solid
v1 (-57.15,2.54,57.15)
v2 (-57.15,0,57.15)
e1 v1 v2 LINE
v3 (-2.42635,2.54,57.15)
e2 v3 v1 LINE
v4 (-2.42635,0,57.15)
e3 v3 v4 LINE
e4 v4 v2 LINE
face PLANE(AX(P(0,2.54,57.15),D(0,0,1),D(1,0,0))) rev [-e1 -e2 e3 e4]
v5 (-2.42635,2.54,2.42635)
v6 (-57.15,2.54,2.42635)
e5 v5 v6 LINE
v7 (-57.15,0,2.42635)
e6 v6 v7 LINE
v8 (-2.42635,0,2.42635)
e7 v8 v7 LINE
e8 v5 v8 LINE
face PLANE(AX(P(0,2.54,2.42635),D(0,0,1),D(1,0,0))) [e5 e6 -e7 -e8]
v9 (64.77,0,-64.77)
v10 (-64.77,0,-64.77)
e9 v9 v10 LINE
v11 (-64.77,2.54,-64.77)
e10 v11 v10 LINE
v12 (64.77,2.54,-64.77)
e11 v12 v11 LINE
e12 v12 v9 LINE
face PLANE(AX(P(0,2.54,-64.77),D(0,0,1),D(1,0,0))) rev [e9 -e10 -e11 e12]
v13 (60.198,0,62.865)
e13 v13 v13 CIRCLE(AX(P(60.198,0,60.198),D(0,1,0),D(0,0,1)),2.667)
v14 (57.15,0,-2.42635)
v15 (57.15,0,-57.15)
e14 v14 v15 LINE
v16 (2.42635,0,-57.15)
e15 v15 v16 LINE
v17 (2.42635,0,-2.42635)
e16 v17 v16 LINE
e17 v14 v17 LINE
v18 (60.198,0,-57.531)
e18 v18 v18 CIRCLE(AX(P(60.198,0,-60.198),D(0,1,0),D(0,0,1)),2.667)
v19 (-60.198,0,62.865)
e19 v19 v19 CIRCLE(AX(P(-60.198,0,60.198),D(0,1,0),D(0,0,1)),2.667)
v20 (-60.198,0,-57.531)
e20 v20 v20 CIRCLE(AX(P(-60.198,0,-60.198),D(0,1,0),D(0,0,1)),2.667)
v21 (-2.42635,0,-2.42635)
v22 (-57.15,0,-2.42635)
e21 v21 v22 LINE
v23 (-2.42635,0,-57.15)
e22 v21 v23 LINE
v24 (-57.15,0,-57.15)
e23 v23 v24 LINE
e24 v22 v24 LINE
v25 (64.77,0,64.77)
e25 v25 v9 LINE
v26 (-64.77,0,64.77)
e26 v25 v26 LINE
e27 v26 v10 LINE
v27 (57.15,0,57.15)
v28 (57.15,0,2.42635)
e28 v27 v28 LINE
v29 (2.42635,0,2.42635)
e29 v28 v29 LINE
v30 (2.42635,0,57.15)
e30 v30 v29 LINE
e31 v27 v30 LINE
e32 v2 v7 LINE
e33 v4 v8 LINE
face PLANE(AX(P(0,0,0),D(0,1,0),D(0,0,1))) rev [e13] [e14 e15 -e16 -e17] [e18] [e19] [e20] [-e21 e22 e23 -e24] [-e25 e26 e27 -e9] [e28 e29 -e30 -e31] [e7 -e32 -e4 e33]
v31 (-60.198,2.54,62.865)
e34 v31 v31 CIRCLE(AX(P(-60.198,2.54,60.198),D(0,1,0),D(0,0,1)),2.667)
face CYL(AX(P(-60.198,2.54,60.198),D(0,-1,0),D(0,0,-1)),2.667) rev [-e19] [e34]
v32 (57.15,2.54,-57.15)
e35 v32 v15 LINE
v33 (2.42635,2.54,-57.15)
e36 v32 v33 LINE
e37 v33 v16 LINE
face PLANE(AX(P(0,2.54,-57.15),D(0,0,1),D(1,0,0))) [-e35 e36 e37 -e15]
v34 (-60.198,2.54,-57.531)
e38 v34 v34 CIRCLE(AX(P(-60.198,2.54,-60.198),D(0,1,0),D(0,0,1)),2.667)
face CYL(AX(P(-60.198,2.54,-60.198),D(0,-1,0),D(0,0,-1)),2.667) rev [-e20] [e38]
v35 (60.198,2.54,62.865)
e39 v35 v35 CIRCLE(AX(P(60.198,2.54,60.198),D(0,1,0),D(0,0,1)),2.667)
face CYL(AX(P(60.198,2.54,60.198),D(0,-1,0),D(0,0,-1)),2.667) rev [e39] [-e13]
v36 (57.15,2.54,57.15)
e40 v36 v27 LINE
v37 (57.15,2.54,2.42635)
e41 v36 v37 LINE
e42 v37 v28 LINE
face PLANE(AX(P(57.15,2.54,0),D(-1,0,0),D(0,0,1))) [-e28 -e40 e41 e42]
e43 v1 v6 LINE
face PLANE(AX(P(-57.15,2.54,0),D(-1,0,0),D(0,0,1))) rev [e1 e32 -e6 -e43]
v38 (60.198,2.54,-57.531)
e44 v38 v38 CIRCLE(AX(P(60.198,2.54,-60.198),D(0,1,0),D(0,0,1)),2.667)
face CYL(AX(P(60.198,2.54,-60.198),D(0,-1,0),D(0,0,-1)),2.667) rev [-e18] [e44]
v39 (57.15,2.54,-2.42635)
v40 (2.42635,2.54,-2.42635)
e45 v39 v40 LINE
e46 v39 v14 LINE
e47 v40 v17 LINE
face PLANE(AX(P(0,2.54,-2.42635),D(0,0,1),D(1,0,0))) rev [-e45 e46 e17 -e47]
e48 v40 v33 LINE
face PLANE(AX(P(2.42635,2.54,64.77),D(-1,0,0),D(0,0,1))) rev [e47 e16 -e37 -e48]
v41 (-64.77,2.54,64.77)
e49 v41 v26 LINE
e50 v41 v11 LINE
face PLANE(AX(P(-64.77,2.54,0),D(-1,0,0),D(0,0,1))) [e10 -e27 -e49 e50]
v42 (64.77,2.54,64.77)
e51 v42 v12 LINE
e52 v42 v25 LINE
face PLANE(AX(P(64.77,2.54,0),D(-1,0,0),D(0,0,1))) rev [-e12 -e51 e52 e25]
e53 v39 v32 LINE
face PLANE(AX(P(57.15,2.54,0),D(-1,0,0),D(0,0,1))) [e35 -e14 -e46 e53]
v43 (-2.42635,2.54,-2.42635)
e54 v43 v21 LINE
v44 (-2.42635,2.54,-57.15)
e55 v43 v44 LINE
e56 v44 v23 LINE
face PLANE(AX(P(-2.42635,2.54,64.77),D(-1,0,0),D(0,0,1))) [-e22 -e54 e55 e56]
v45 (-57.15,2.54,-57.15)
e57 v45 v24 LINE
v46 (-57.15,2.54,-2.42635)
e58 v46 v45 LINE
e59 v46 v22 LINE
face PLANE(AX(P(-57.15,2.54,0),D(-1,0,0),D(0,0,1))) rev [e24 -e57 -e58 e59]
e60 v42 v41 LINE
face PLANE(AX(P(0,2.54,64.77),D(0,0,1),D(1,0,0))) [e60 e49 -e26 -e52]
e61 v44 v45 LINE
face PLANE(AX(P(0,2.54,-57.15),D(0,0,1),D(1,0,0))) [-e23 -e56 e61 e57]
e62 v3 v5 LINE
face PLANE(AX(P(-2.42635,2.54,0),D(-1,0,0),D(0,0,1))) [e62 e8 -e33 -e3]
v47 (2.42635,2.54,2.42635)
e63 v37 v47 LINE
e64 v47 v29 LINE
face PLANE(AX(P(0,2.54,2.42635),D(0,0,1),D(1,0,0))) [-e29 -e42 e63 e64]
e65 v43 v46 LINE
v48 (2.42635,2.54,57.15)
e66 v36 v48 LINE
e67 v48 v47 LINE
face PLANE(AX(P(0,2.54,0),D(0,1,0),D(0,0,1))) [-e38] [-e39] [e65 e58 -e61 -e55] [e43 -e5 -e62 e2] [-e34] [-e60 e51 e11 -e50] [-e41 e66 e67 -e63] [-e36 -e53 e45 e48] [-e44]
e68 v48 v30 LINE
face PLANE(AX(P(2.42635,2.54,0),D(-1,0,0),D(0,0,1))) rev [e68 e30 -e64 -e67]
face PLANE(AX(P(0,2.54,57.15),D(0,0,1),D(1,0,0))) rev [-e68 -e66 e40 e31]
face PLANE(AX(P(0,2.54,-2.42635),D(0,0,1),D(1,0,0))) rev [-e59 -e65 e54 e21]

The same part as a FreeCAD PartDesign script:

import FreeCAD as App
import Part
import Sketcher
Q = App.Units.Quantity

doc = App.newDocument("Part")
params = doc.addObject("Spreadsheet::Sheet", "Params")
for row, (alias, value) in enumerate([
    ("sketch1_diameter", "0.21 in"),
    ("sketch1_width", "5.1 in"),
    ("pad1_length", "0.1 in"),
], start=1):
    params.set(f"A{row}", alias)
    params.set(f"B{row}", "=" + value)
    params.setAlias(f"B{row}", alias)

body = doc.addObject("PartDesign::Body", "Body")

sketch1 = body.newObject("Sketcher::SketchObject", "Sketch")
sketch1.AttachmentSupport = (doc.getObject("XZ_Plane"), [""])
sketch1.MapMode = "FlatFace"
sketch1.addGeometry(Part.LineSegment(App.Vector(-64.8, 64.8, 0), App.Vector(64.8, 64.8, 0)), False)
sketch1.addGeometry(Part.LineSegment(App.Vector(64.8, 64.8, 0), App.Vector(64.8, -64.8, 0)), False)
sketch1.addGeometry(Part.LineSegment(App.Vector(64.8, -64.8, 0), App.Vector(-64.8, -64.8, 0)), False)
sketch1.addGeometry(Part.LineSegment(App.Vector(-64.8, -64.8, 0), App.Vector(-64.8, 64.8, 0)), False)
sketch1.addGeometry(Part.LineSegment(App.Vector(-57.1, 57.1, 0), App.Vector(-57.1, 2.4, 0)), False)
sketch1.addGeometry(Part.LineSegment(App.Vector(-57.1, 2.4, 0), App.Vector(-2.4, 2.4, 0)), False)
sketch1.addGeometry(Part.LineSegment(App.Vector(-2.4, 2.4, 0), App.Vector(-2.4, 57.1, 0)), False)
sketch1.addGeometry(Part.LineSegment(App.Vector(-2.4, 57.1, 0), App.Vector(-57.1, 57.1, 0)), False)
sketch1.addGeometry(Part.Circle(App.Vector(-60.2, 60.2, 0), App.Vector(0, 0, 1), 2.7), False)
sketch1.addGeometry(Part.LineSegment(App.Vector(-57.1, -57.1, 0), App.Vector(-2.4, -57.1, 0)), False)
sketch1.addGeometry(Part.LineSegment(App.Vector(-2.4, -57.1, 0), App.Vector(-2.4, -2.4, 0)), False)
sketch1.addGeometry(Part.LineSegment(App.Vector(-2.4, -2.4, 0), App.Vector(-57.1, -2.4, 0)), False)
sketch1.addGeometry(Part.LineSegment(App.Vector(-57.1, -2.4, 0), App.Vector(-57.1, -57.1, 0)), False)
sketch1.addGeometry(Part.Circle(App.Vector(-60.2, -60.2, 0), App.Vector(0, 0, 1), 2.7), False)
sketch1.addGeometry(Part.LineSegment(App.Vector(2.4, 57.1, 0), App.Vector(2.4, 2.4, 0)), False)
sketch1.addGeometry(Part.LineSegment(App.Vector(2.4, 2.4, 0), App.Vector(57.1, 2.4, 0)), False)
sketch1.addGeometry(Part.LineSegment(App.Vector(57.1, 2.4, 0), App.Vector(57.1, 57.1, 0)), False)
sketch1.addGeometry(Part.LineSegment(App.Vector(57.1, 57.1, 0), App.Vector(2.4, 57.1, 0)), False)
sketch1.addGeometry(Part.Circle(App.Vector(60.2, 60.2, 0), App.Vector(0, 0, 1), 2.7), False)
sketch1.addGeometry(Part.Circle(App.Vector(60.2, -60.2, 0), App.Vector(0, 0, 1), 2.7), False)
sketch1.addGeometry(Part.LineSegment(App.Vector(57.1, -57.1, 0), App.Vector(57.1, -2.4, 0)), False)
sketch1.addGeometry(Part.LineSegment(App.Vector(57.1, -2.4, 0), App.Vector(2.4, -2.4, 0)), False)
sketch1.addGeometry(Part.LineSegment(App.Vector(2.4, -2.4, 0), App.Vector(2.4, -57.1, 0)), False)
sketch1.addGeometry(Part.LineSegment(App.Vector(2.4, -57.1, 0), App.Vector(57.1, -57.1, 0)), False)
sketch1.addConstraint(Sketcher.Constraint("Coincident", 0, 2, 1, 1))
sketch1.addConstraint(Sketcher.Constraint("Coincident", 1, 2, 2, 1))
sketch1.addConstraint(Sketcher.Constraint("Coincident", 2, 2, 3, 1))
sketch1.addConstraint(Sketcher.Constraint("Coincident", 3, 2, 0, 1))
sketch1.addConstraint(Sketcher.Constraint("Coincident", 4, 2, 5, 1))
sketch1.addConstraint(Sketcher.Constraint("Coincident", 5, 2, 6, 1))
sketch1.addConstraint(Sketcher.Constraint("Coincident", 6, 2, 7, 1))
sketch1.addConstraint(Sketcher.Constraint("Coincident", 7, 2, 4, 1))
sketch1.addConstraint(Sketcher.Constraint("Coincident", 9, 2, 10, 1))
sketch1.addConstraint(Sketcher.Constraint("Coincident", 10, 2, 11, 1))
sketch1.addConstraint(Sketcher.Constraint("Coincident", 11, 2, 12, 1))
sketch1.addConstraint(Sketcher.Constraint("Coincident", 12, 2, 9, 1))
sketch1.addConstraint(Sketcher.Constraint("Coincident", 14, 2, 15, 1))
sketch1.addConstraint(Sketcher.Constraint("Coincident", 15, 2, 16, 1))
sketch1.addConstraint(Sketcher.Constraint("Coincident", 16, 2, 17, 1))
sketch1.addConstraint(Sketcher.Constraint("Coincident", 17, 2, 14, 1))
sketch1.addConstraint(Sketcher.Constraint("Coincident", 20, 2, 21, 1))
sketch1.addConstraint(Sketcher.Constraint("Coincident", 21, 2, 22, 1))
sketch1.addConstraint(Sketcher.Constraint("Coincident", 22, 2, 23, 1))
sketch1.addConstraint(Sketcher.Constraint("Coincident", 23, 2, 20, 1))
sketch1.addConstraint(Sketcher.Constraint("Horizontal", 0))
sketch1.addConstraint(Sketcher.Constraint("Vertical", 1))
sketch1.addConstraint(Sketcher.Constraint("Horizontal", 2))
sketch1.addConstraint(Sketcher.Constraint("Vertical", 3))
sketch1.addConstraint(Sketcher.Constraint("Vertical", 4))
sketch1.addConstraint(Sketcher.Constraint("Horizontal", 5))
sketch1.addConstraint(Sketcher.Constraint("Vertical", 6))
sketch1.addConstraint(Sketcher.Constraint("Horizontal", 7))
sketch1.addConstraint(Sketcher.Constraint("Horizontal", 9))
sketch1.addConstraint(Sketcher.Constraint("Vertical", 10))
sketch1.addConstraint(Sketcher.Constraint("Horizontal", 11))
sketch1.addConstraint(Sketcher.Constraint("Vertical", 12))
sketch1.addConstraint(Sketcher.Constraint("Vertical", 14))
sketch1.addConstraint(Sketcher.Constraint("Horizontal", 15))
sketch1.addConstraint(Sketcher.Constraint("Vertical", 16))
sketch1.addConstraint(Sketcher.Constraint("Horizontal", 17))
sketch1.addConstraint(Sketcher.Constraint("Vertical", 20))
sketch1.addConstraint(Sketcher.Constraint("Horizontal", 21))
sketch1.addConstraint(Sketcher.Constraint("Vertical", 22))
sketch1.addConstraint(Sketcher.Constraint("Horizontal", 23))
sketch1.addConstraint(Sketcher.Constraint("Equal", 8, 13))
sketch1.addConstraint(Sketcher.Constraint("Equal", 13, 18))
sketch1.addConstraint(Sketcher.Constraint("Equal", 18, 19))
sketch1.addConstraint(Sketcher.Constraint("Symmetric", 13, 3, 18, 3, -1, 1))
sketch1.addConstraint(Sketcher.Constraint("Symmetric", 8, 3, 19, 3, -1, 1))
sketch1.addConstraint(Sketcher.Constraint("Symmetric", 0, 2, 2, 2, -1, 1))
sketch1.addConstraint(Sketcher.Constraint("Symmetric", 10, 2, 14, 2, -1, 1))
sketch1.addConstraint(Sketcher.Constraint("Symmetric", 12, 2, 16, 2, -1, 1))
sketch1.addConstraint(Sketcher.Constraint("Symmetric", 4, 2, 20, 2, -1, 1))
sketch1.addConstraint(Sketcher.Constraint("Symmetric", 6, 2, 22, 2, -1, 1))
sketch1.addConstraint(Sketcher.Constraint("Symmetric", 8, 3, 18, 3, -2))
sketch1.addConstraint(Sketcher.Constraint("Symmetric", 5, 2, 14, 2, -2))
sketch1.addConstraint(Sketcher.Constraint("Symmetric", 7, 2, 16, 2, -2))
sketch1.addConstraint(Sketcher.Constraint("Equal", 2, 1))
sketch1.addConstraint(Sketcher.Constraint("Equal", 23, 4))
sketch1.addConstraint(Sketcher.Constraint("Diameter", 8, Q("0.21 in")))
sketch1.addConstraint(Sketcher.Constraint("DistanceX", 0, 1, 0, 2, Q("5.1 in")))
sketch1.addConstraint(Sketcher.Constraint("DistanceX", 3, 2, 4, 2, Q("0.3 in")))
sketch1.addConstraint(Sketcher.Constraint("DistanceY", 6, 2, 3, 2, Q("0.3 in")))
sketch1.addConstraint(Sketcher.Constraint("DistanceX", 8, 3, -1, 1, Q("2.37 in")))
sketch1.addConstraint(Sketcher.Constraint("DistanceY", -1, 1, 8, 3, Q("2.37 in")))
sketch1.addConstraint(Sketcher.Constraint("DistanceX", 5, 1, 5, 2, Q("54.72365 mm")))
sketch1.setExpression("Constraints[55]", "Params.sketch1_diameter")
sketch1.setExpression("Constraints[56]", "Params.sketch1_width")
pad1 = body.newObject("PartDesign::Pad", "Pad")
pad1.Profile = sketch1
pad1.setExpression("Length", "Params.pad1_length")
pad1.Reversed = True

doc.recompute()
